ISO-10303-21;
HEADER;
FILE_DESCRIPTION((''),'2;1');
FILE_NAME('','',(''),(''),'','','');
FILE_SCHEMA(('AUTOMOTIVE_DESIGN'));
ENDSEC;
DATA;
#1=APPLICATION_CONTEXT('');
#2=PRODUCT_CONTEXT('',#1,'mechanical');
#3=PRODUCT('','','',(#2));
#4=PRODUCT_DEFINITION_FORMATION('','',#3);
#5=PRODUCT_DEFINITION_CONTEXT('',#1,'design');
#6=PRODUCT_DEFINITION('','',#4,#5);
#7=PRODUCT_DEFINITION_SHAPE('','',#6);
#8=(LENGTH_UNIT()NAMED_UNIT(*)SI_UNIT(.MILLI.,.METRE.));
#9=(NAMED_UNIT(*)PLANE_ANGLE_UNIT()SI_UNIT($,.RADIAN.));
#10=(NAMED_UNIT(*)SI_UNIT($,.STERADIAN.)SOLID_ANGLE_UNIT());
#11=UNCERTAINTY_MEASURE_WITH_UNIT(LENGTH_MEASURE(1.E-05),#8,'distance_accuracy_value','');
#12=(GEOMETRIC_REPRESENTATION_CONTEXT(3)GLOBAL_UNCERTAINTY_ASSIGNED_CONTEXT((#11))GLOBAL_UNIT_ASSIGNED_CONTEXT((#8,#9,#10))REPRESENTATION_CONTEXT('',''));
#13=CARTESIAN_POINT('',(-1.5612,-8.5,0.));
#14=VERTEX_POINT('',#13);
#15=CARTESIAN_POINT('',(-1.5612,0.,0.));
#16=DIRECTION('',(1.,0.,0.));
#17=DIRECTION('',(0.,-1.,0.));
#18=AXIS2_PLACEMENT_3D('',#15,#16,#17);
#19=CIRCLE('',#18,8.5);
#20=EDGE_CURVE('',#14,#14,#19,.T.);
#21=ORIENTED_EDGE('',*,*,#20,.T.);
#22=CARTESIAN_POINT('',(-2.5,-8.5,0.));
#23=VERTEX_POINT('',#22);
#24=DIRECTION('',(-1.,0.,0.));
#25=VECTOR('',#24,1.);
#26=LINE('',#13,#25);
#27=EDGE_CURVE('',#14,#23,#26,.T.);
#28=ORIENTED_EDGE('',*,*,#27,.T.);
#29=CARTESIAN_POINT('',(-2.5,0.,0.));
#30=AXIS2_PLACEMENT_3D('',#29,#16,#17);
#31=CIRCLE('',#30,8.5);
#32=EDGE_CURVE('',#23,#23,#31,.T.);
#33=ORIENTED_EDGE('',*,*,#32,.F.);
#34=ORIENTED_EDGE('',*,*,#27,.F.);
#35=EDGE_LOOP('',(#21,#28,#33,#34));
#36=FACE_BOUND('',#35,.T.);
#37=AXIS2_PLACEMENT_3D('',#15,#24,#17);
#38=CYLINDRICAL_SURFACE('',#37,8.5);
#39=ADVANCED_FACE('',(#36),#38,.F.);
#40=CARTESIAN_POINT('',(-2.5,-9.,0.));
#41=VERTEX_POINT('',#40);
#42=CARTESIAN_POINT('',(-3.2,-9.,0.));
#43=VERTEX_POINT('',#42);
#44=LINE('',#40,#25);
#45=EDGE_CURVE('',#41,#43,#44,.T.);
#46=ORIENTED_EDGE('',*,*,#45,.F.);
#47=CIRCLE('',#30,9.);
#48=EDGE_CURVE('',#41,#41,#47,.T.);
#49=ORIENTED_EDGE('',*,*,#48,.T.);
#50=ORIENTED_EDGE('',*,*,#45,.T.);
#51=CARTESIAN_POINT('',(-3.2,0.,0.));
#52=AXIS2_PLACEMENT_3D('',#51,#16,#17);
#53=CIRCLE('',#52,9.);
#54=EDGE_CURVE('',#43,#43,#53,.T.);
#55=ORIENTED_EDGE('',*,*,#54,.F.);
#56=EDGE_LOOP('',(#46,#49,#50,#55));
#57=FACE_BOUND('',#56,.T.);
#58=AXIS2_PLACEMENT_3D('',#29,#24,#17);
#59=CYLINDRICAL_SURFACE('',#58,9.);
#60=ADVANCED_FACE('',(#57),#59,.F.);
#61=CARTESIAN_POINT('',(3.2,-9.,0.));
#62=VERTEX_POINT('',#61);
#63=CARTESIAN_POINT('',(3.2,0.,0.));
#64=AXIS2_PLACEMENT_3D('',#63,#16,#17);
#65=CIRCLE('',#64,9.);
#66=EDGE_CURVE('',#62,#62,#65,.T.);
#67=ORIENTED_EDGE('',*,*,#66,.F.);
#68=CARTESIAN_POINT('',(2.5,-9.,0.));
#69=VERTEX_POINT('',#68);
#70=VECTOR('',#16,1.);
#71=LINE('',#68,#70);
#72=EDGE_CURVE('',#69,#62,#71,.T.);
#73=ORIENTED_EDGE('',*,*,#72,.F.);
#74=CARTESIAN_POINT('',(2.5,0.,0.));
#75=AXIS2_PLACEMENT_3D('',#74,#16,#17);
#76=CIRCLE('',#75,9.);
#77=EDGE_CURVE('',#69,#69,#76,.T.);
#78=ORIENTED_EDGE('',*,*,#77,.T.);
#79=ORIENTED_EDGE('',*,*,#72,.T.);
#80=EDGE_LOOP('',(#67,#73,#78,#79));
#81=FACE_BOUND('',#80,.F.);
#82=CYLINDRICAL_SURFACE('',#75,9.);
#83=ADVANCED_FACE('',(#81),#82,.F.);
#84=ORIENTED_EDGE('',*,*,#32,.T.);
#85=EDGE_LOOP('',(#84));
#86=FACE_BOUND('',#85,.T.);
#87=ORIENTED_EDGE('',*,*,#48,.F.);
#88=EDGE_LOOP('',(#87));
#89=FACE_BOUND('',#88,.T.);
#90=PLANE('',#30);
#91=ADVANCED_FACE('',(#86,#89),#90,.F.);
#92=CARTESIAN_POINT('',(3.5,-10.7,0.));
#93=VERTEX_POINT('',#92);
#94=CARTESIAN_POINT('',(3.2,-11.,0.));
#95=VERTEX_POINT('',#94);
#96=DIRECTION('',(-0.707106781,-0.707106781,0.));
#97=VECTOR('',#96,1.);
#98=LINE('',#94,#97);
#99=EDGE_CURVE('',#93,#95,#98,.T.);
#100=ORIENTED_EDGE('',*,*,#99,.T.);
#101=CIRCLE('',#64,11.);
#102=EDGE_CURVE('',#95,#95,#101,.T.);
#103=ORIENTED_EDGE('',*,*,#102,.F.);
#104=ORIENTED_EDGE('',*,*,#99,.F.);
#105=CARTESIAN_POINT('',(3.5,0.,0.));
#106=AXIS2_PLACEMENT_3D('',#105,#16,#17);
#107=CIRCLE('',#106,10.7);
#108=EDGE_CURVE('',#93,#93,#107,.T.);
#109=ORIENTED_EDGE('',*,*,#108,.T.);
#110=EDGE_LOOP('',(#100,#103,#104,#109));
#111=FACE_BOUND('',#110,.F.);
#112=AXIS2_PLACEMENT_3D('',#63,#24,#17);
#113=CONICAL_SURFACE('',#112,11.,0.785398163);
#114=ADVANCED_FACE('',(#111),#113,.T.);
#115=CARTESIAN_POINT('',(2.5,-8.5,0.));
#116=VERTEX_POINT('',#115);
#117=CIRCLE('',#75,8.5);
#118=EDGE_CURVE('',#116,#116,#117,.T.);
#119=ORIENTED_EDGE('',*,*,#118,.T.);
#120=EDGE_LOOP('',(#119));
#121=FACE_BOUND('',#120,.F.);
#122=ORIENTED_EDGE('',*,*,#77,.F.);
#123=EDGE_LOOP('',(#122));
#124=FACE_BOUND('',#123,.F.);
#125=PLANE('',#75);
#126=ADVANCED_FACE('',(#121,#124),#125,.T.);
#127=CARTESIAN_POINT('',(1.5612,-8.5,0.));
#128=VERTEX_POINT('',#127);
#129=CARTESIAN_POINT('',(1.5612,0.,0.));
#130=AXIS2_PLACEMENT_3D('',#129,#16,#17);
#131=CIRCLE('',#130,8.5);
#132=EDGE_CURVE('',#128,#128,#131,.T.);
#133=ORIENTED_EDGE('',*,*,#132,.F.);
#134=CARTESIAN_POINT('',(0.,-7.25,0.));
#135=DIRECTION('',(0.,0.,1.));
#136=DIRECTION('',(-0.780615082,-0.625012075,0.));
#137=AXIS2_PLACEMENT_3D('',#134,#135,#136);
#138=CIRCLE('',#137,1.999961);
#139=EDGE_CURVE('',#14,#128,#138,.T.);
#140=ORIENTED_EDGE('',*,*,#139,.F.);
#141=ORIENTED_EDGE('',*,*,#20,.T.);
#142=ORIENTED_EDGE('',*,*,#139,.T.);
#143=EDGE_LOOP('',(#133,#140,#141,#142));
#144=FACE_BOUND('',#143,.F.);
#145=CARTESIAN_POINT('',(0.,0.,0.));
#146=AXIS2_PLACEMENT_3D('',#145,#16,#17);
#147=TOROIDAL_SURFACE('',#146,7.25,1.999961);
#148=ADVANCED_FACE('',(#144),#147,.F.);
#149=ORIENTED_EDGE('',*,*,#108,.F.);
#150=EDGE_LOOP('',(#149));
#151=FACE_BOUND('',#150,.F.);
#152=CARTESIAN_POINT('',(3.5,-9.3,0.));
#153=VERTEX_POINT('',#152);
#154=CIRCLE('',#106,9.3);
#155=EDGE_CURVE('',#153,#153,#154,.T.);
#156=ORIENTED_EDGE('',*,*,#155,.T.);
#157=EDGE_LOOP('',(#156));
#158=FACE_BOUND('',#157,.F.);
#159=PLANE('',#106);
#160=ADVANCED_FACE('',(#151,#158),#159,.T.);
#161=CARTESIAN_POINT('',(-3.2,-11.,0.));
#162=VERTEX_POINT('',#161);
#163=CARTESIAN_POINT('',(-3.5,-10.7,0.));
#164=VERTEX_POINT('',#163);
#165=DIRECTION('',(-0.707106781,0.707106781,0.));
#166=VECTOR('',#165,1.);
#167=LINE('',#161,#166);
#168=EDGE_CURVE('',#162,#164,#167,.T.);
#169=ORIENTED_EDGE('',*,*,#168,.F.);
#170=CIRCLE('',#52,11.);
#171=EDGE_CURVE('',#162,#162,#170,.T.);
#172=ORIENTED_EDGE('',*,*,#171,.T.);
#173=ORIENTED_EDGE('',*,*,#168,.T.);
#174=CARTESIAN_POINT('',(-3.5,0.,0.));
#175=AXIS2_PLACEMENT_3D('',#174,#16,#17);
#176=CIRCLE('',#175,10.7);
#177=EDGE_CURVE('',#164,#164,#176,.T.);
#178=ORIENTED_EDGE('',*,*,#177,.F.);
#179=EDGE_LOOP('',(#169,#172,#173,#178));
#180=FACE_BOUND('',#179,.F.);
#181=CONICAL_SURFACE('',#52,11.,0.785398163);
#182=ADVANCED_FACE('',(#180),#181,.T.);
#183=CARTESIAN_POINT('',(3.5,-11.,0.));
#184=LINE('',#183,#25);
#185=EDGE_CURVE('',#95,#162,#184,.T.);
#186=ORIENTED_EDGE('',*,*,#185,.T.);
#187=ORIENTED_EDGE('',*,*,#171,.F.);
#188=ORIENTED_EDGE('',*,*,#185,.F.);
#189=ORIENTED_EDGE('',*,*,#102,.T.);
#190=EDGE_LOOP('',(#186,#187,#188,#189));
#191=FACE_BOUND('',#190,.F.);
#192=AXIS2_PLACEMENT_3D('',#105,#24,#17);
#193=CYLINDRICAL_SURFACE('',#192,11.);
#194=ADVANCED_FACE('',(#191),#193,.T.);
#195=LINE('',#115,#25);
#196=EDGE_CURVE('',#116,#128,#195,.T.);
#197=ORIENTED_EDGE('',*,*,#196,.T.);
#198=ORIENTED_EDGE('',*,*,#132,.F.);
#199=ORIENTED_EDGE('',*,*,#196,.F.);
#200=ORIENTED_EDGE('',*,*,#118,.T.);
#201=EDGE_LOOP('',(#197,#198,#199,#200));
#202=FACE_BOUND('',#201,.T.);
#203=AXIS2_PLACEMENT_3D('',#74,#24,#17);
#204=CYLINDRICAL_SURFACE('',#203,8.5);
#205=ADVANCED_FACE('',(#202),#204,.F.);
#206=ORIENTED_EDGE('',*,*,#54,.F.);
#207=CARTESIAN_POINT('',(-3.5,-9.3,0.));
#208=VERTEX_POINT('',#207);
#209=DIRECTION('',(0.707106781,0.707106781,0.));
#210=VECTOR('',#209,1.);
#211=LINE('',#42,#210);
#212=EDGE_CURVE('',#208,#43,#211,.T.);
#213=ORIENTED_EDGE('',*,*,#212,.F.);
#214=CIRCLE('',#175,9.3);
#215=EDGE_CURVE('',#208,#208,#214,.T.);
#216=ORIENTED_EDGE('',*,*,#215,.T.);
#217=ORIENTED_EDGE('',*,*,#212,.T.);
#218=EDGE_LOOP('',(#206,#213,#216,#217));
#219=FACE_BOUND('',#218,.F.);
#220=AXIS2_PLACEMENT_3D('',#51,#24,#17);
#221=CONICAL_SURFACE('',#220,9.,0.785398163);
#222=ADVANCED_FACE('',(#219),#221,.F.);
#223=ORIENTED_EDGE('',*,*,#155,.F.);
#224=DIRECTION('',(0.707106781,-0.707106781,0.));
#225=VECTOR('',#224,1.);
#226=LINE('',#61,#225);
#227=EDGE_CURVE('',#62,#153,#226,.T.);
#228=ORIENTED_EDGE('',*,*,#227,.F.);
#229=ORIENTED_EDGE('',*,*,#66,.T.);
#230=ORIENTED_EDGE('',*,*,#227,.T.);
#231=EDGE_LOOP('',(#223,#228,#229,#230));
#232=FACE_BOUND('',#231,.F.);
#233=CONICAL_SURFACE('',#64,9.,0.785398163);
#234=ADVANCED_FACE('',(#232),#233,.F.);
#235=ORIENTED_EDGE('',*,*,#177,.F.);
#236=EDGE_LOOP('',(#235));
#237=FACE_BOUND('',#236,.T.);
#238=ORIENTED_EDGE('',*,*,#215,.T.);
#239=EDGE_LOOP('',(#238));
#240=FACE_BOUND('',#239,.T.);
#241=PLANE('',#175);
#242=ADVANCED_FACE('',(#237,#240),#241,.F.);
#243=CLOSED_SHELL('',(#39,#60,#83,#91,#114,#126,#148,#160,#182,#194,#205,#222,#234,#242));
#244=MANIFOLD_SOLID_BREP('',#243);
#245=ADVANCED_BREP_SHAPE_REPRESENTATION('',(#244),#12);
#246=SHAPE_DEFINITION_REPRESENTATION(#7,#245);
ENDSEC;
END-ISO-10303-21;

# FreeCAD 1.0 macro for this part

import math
import FreeCAD as App
import Part
import Sketcher

V = App.Vector
Q = App.Units.Quantity


def edges_at(feature, points):
    """Names of the edges that pass closest to the given points."""
    edges = feature.Shape.Edges
    near = lambda p: min(range(len(edges)), key=lambda i: edges[i].distToShape(Part.Vertex(*p))[0])
    return sorted({f"Edge{near(p) + 1}" for p in points})

doc = App.newDocument("Part")
body = doc.addObject("PartDesign::Body", "Body")

# Sketch on XY plane
sketch1 = doc.addObject("Sketcher::SketchObject", "Sketch")
body.addObject(sketch1)
sketch1.AttachmentSupport = (doc.XY_Plane, [""])
sketch1.MapMode = "FlatFace"
sketch1.addGeometry(Part.LineSegment(V(-1.6, -8.5, 0), V(-2.5, -8.5, 0)), False)
sketch1.addGeometry(Part.LineSegment(V(-2.5, -8.5, 0), V(-2.5, -9, 0)), False)
sketch1.addGeometry(Part.LineSegment(V(-2.5, -9, 0), V(-3.5, -9, 0)), False)
sketch1.addGeometry(Part.LineSegment(V(-3.5, -9, 0), V(-3.5, -11, 0)), False)
sketch1.addGeometry(Part.LineSegment(V(-3.5, -11, 0), V(3.5, -11, 0)), False)
sketch1.addGeometry(Part.LineSegment(V(3.5, -11, 0), V(3.5, -9, 0)), False)
sketch1.addGeometry(Part.LineSegment(V(3.5, -9, 0), V(2.5, -9, 0)), False)
sketch1.addGeometry(Part.LineSegment(V(2.5, -9, 0), V(2.5, -8.5, 0)), False)
sketch1.addGeometry(Part.LineSegment(V(2.5, -8.5, 0), V(1.6, -8.5, 0)), False)
sketch1.addGeometry(Part.ArcOfCircle(Part.Circle(V(0, -7.2, 0), V(0, 0, 1), 2), math.radians(-141), math.radians(-39)), False)
sketch1.addConstraint(Sketcher.Constraint("Coincident", 0, 2, 1, 1))
sketch1.addConstraint(Sketcher.Constraint("Coincident", 1, 2, 2, 1))
sketch1.addConstraint(Sketcher.Constraint("Coincident", 2, 2, 3, 1))
sketch1.addConstraint(Sketcher.Constraint("Coincident", 3, 2, 4, 1))
sketch1.addConstraint(Sketcher.Constraint("Coincident", 4, 2, 5, 1))
sketch1.addConstraint(Sketcher.Constraint("Coincident", 5, 2, 6, 1))
sketch1.addConstraint(Sketcher.Constraint("Coincident", 6, 2, 7, 1))
sketch1.addConstraint(Sketcher.Constraint("Coincident", 7, 2, 8, 1))
sketch1.addConstraint(Sketcher.Constraint("Coincident", 8, 2, 9, 2))
sketch1.addConstraint(Sketcher.Constraint("Coincident", 9, 1, 0, 1))
sketch1.addConstraint(Sketcher.Constraint("Horizontal", 0))
sketch1.addConstraint(Sketcher.Constraint("Vertical", 1))
sketch1.addConstraint(Sketcher.Constraint("Horizontal", 2))
sketch1.addConstraint(Sketcher.Constraint("Vertical", 3))
sketch1.addConstraint(Sketcher.Constraint("Horizontal", 4))
sketch1.addConstraint(Sketcher.Constraint("Vertical", 5))
sketch1.addConstraint(Sketcher.Constraint("Horizontal", 6))
sketch1.addConstraint(Sketcher.Constraint("Vertical", 7))
sketch1.addConstraint(Sketcher.Constraint("Horizontal", 8))
sketch1.addConstraint(Sketcher.Constraint("Symmetric", 2, 2, 5, 2, -2))
sketch1.addConstraint(Sketcher.Constraint("Symmetric", 0, 2, 7, 2, -2))
sketch1.addConstraint(Sketcher.Constraint("PointOnObject", 9, 3, -2))
sketch1.addConstraint(Sketcher.Constraint("Radius", 9, Q("2 mm")))
sketch1.addConstraint(Sketcher.Constraint("DistanceX", 2, 2, 2, 1, Q("1 mm")))
sketch1.addConstraint(Sketcher.Constraint("DistanceX", 4, 1, 4, 2, Q("7 mm")))
sketch1.addConstraint(Sketcher.Constraint("DistanceY", 3, 2, 3, 1, Q("2 mm")))
sketch1.addConstraint(Sketcher.Constraint("DistanceY", 1, 2, 1, 1, Q("0.5 mm")))
sketch1.addConstraint(Sketcher.Constraint("DistanceY", 0, 2, 9, 3, Q("1.25 mm")))
sketch1.addConstraint(Sketcher.Constraint("DistanceY", 1, 2, -1, 1, Q("9 mm")))
revolution = doc.addObject("PartDesign::Revolution", "Revolution")
body.addObject(revolution)
revolution.Profile = sketch1
revolution.ReferenceAxis = (sketch1, ["H_Axis"])
revolution.Angle = 360
doc.recompute()

chamfer = doc.addObject("PartDesign::Chamfer", "Chamfer")
body.addObject(chamfer)
chamfer.Base = (revolution, edges_at(revolution, [
    (3.5, 9, 0),
    (-3.5, 11, 0),
    (-3.5, 9, 0),
    (3.5, 11, 0),
]))
chamfer.Size = 0.3

doc.recompute()
